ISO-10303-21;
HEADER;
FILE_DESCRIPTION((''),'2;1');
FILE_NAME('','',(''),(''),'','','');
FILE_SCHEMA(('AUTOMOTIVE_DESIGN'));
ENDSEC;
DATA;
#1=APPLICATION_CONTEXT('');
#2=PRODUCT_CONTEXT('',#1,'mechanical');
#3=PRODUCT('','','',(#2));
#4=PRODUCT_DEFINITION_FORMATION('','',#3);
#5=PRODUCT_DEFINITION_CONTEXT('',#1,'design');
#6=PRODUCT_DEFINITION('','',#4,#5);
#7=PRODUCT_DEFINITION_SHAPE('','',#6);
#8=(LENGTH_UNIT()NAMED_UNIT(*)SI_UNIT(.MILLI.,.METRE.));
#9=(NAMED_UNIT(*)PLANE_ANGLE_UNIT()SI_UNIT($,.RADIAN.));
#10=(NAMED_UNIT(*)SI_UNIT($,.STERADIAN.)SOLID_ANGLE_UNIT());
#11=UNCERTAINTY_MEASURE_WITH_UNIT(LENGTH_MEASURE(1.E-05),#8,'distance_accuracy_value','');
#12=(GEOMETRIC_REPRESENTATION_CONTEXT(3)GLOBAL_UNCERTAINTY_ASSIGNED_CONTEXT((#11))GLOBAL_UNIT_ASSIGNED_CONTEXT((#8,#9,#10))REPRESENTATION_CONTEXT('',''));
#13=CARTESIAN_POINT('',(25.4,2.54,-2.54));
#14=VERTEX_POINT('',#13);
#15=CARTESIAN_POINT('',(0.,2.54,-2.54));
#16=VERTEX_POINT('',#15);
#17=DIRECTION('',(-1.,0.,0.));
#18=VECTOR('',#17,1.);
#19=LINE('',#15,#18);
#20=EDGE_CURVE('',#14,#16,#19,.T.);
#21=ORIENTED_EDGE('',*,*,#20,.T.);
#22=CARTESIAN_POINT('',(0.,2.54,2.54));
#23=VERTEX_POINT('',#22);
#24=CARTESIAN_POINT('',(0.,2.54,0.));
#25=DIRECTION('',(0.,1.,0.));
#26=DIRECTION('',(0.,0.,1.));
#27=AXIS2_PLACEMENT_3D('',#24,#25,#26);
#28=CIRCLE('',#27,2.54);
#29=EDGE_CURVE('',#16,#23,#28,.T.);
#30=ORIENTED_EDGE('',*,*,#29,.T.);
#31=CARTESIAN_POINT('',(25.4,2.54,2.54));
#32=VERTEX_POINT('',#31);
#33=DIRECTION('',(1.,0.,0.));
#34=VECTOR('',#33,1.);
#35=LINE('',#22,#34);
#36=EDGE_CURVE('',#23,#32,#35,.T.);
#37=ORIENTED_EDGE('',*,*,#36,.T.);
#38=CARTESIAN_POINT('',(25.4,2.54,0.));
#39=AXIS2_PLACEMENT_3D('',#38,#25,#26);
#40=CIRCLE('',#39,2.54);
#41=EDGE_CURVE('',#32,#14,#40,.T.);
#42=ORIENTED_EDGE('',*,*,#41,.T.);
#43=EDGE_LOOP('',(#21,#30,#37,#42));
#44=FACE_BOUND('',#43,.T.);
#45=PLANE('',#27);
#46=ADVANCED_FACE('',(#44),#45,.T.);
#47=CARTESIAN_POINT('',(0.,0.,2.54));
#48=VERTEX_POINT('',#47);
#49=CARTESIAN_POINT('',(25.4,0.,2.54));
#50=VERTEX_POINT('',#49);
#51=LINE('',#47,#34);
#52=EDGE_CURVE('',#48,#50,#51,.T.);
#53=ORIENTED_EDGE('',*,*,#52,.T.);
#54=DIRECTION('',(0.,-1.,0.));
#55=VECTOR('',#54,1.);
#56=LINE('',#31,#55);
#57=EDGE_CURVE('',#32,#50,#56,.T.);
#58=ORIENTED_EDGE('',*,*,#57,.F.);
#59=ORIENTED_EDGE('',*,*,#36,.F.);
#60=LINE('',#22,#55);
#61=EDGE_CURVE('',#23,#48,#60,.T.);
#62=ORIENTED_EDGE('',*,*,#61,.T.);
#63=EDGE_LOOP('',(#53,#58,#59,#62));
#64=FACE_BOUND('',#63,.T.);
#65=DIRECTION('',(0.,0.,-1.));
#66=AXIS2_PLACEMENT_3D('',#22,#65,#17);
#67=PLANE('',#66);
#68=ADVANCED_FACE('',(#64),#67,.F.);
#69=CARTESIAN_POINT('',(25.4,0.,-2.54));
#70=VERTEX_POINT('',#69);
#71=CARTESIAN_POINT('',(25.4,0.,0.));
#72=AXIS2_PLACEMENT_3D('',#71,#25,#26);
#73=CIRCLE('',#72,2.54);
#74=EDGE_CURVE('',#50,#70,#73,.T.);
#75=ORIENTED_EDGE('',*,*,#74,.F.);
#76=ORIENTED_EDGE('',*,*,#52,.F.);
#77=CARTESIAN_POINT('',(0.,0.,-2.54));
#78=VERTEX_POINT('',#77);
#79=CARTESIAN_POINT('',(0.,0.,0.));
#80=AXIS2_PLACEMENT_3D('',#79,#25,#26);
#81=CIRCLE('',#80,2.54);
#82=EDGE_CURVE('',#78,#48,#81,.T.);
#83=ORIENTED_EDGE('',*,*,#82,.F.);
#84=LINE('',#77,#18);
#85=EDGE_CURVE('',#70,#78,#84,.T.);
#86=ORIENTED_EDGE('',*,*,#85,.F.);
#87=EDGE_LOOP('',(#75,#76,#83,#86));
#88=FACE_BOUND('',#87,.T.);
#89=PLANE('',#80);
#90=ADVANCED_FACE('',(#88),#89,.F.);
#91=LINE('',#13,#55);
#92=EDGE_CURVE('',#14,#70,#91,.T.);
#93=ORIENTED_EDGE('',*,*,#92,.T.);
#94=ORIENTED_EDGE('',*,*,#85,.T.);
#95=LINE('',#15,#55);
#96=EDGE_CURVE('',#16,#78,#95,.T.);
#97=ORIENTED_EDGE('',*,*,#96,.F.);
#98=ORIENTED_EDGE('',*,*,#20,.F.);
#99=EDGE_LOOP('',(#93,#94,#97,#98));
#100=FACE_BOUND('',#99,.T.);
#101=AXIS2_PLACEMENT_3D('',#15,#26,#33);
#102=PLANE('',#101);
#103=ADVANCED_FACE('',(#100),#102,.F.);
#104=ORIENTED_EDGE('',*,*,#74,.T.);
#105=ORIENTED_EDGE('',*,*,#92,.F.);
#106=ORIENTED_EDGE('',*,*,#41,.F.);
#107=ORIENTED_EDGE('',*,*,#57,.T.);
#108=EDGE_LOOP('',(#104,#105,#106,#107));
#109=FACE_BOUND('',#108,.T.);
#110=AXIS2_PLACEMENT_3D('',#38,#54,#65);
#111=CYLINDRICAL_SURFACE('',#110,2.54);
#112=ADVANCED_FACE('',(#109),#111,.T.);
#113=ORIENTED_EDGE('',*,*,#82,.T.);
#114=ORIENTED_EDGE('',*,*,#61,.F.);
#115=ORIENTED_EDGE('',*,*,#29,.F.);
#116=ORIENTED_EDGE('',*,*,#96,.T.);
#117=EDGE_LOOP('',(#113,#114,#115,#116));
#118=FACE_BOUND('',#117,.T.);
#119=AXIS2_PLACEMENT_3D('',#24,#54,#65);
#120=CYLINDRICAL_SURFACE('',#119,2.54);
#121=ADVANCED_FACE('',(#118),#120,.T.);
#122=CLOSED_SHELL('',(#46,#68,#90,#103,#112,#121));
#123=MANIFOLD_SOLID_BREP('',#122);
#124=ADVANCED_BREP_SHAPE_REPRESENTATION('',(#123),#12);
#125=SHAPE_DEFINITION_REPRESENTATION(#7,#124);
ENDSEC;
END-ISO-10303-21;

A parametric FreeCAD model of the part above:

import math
import FreeCAD as App
import Part
import Sketcher

V = App.Vector
Q = App.Units.Quantity

doc = App.newDocument("Part")
params = doc.addObject("Spreadsheet::Sheet", "Params")
for row, (alias, value) in enumerate([
    ("sketch1_radius", "0.1 in"),
    ("sketch1_width", "1 in"),
    ("pad1_length", "0.1 in"),
], start=1):
    params.set(f"A{row}", alias)
    params.set(f"B{row}", "=" + value)
    params.setAlias(f"B{row}", alias)

body = doc.addObject("PartDesign::Body", "Body")

sketch1 = body.newObject("Sketcher::SketchObject", "Sketch")
sketch1.AttachmentSupport = (doc.getObject("XZ_Plane"), [""])
sketch1.MapMode = "FlatFace"
sketch1.addGeometry([
    Part.LineSegment(V(25.4, -2.5, 0), V(0, -2.5, 0)),
    Part.ArcOfCircle(Part.Circle(V(0, 0, 0), V(0, 0, 1), 2.5), math.radians(90), math.radians(270)),
    Part.LineSegment(V(0, 2.5, 0), V(25.4, 2.5, 0)),
    Part.ArcOfCircle(Part.Circle(V(25.4, 0, 0), V(0, 0, 1), 2.5), math.radians(-90), math.radians(90)),
], False)
sketch1.addConstraint([
    Sketcher.Constraint("Tangent", 0, 2, 1, 2),
    Sketcher.Constraint("Tangent", 1, 1, 2, 1),
    Sketcher.Constraint("Tangent", 2, 2, 3, 2),
    Sketcher.Constraint("Tangent", 3, 1, 0, 1),
    Sketcher.Constraint("Horizontal", 0),
    Sketcher.Constraint("Horizontal", 2),
    Sketcher.Constraint("Coincident", 1, 3, -1, 1),
    Sketcher.Constraint("Radius", 1, Q("0.1 in")),
    Sketcher.Constraint("DistanceX", 0, 2, 0, 1, Q("1 in")),
])
sketch1.setExpression("Constraints[7]", "Params.sketch1_radius")
sketch1.setExpression("Constraints[8]", "Params.sketch1_width")
pad1 = body.newObject("PartDesign::Pad", "Pad")
pad1.Profile = sketch1
pad1.setExpression("Length", "Params.pad1_length")
pad1.Reversed = True

doc.recompute()
